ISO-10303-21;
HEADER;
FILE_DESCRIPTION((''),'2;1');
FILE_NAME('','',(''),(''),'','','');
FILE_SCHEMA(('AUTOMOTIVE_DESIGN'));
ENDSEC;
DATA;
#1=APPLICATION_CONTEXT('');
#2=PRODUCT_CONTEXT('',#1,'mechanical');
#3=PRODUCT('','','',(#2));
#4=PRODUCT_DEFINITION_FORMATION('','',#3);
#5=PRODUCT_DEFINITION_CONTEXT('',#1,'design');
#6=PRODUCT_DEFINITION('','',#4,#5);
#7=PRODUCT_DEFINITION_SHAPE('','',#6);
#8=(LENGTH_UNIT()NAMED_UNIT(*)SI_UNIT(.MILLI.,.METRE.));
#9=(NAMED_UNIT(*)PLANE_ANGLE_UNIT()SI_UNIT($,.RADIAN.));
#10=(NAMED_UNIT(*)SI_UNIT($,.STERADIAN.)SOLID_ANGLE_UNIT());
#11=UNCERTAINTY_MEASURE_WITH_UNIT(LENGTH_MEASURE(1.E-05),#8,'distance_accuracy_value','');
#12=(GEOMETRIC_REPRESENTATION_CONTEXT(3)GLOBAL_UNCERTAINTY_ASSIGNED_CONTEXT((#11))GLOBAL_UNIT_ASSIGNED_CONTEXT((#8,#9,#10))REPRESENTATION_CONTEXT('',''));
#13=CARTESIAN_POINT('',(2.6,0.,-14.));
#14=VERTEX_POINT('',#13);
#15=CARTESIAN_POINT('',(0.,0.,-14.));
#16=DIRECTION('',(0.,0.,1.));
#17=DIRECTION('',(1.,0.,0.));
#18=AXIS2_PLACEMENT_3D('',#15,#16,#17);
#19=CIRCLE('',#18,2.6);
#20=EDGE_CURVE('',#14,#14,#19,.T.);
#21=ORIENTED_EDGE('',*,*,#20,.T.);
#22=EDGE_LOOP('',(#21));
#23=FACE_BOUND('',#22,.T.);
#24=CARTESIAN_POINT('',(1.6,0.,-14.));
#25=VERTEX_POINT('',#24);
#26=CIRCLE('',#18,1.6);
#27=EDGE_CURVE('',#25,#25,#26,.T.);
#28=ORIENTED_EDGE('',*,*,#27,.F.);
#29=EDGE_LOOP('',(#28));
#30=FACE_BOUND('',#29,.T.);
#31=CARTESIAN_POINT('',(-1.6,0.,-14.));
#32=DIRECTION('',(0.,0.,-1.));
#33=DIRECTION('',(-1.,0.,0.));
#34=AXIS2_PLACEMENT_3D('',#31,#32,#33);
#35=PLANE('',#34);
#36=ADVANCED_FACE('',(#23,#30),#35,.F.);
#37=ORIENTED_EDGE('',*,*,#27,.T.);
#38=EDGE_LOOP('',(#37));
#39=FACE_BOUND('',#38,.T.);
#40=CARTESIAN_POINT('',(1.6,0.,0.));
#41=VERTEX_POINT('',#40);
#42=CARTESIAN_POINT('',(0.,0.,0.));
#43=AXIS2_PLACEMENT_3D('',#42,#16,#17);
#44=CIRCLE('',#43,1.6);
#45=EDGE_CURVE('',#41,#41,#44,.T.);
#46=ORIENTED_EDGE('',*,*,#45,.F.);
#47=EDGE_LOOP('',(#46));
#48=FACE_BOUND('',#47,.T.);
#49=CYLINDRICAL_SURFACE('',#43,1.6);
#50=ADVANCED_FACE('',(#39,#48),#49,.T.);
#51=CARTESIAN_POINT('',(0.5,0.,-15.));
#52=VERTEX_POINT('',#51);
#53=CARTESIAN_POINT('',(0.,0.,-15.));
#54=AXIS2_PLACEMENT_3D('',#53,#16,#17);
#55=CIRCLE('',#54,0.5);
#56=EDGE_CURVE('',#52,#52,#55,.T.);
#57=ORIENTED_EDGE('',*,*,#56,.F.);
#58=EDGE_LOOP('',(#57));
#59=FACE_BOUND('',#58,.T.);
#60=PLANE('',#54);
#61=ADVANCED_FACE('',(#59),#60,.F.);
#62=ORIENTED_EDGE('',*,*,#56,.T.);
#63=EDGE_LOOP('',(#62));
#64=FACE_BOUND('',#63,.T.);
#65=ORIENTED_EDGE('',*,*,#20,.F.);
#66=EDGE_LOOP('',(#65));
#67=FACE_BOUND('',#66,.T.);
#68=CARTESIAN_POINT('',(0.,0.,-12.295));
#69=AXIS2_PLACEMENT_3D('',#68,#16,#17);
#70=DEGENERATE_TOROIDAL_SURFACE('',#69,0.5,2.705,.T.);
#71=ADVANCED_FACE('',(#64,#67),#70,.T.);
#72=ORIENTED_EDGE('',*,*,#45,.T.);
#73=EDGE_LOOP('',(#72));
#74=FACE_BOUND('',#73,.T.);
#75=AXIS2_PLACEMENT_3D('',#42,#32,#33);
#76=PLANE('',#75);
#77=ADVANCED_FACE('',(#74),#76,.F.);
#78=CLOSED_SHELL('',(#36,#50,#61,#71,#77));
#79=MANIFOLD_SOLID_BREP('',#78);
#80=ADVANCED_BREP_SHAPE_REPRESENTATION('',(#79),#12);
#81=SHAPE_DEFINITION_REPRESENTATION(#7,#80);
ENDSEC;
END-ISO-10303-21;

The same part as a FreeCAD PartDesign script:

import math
import FreeCAD as App
import Part
import Sketcher

V = App.Vector
Q = App.Units.Quantity

doc = App.newDocument("Part")
body = doc.addObject("PartDesign::Body", "Body")

sketch1 = body.newObject("Sketcher::SketchObject", "Sketch")
sketch1.AttachmentSupport = (doc.getObject("XZ_Plane"), [""])
sketch1.MapMode = "FlatFace"
sketch1.addGeometry(Part.LineSegment(V(-1.6, 0, 0), V(0, 0, 0)), False)
sketch1.addGeometry(Part.LineSegment(V(0, 0, 0), V(0, -15, 0)), False)
sketch1.addGeometry(Part.LineSegment(V(0, -15, 0), V(-0.5, -15, 0)), False)
sketch1.addGeometry(Part.ArcOfCircle(Part.Circle(V(-0.5, -12.3, 0), V(0, 0, 1), 2.7), math.radians(-141), math.radians(-90)), False)
sketch1.addGeometry(Part.LineSegment(V(-2.6, -14, 0), V(-1.6, -14, 0)), False)
sketch1.addGeometry(Part.LineSegment(V(-1.6, -14, 0), V(-1.6, 0, 0)), False)
sketch1.addConstraint(Sketcher.Constraint("Coincident", 0, 2, 1, 1))
sketch1.addConstraint(Sketcher.Constraint("Coincident", 1, 2, 2, 1))
sketch1.addConstraint(Sketcher.Constraint("Tangent", 2, 2, 3, 2))
sketch1.addConstraint(Sketcher.Constraint("Coincident", 3, 1, 4, 1))
sketch1.addConstraint(Sketcher.Constraint("Coincident", 4, 2, 5, 1))
sketch1.addConstraint(Sketcher.Constraint("Coincident", 5, 2, 0, 1))
sketch1.addConstraint(Sketcher.Constraint("Horizontal", 0))
sketch1.addConstraint(Sketcher.Constraint("Vertical", 1))
sketch1.addConstraint(Sketcher.Constraint("Horizontal", 2))
sketch1.addConstraint(Sketcher.Constraint("Horizontal", 4))
sketch1.addConstraint(Sketcher.Constraint("Vertical", 5))
sketch1.addConstraint(Sketcher.Constraint("Coincident", 0, 2, -1, 1))
sketch1.addConstraint(Sketcher.Constraint("DistanceX", 4, 1, 4, 2, Q("1 mm")))
sketch1.addConstraint(Sketcher.Constraint("DistanceY", 1, 2, 1, 1, Q("15 mm")))
sketch1.addConstraint(Sketcher.Constraint("DistanceY", 5, 1, 5, 2, Q("14 mm")))
sketch1.addConstraint(Sketcher.Constraint("DistanceX", 0, 1, 0, 2, Q("1.6 mm")))
sketch1.addConstraint(Sketcher.Constraint("DistanceX", 2, 2, 2, 1, Q("0.5 mm")))
revolution = body.newObject("PartDesign::Revolution", "Revolution")
revolution.Profile = sketch1
revolution.ReferenceAxis = (sketch1, ["V_Axis"])
revolution.Angle = 360

doc.recompute()
